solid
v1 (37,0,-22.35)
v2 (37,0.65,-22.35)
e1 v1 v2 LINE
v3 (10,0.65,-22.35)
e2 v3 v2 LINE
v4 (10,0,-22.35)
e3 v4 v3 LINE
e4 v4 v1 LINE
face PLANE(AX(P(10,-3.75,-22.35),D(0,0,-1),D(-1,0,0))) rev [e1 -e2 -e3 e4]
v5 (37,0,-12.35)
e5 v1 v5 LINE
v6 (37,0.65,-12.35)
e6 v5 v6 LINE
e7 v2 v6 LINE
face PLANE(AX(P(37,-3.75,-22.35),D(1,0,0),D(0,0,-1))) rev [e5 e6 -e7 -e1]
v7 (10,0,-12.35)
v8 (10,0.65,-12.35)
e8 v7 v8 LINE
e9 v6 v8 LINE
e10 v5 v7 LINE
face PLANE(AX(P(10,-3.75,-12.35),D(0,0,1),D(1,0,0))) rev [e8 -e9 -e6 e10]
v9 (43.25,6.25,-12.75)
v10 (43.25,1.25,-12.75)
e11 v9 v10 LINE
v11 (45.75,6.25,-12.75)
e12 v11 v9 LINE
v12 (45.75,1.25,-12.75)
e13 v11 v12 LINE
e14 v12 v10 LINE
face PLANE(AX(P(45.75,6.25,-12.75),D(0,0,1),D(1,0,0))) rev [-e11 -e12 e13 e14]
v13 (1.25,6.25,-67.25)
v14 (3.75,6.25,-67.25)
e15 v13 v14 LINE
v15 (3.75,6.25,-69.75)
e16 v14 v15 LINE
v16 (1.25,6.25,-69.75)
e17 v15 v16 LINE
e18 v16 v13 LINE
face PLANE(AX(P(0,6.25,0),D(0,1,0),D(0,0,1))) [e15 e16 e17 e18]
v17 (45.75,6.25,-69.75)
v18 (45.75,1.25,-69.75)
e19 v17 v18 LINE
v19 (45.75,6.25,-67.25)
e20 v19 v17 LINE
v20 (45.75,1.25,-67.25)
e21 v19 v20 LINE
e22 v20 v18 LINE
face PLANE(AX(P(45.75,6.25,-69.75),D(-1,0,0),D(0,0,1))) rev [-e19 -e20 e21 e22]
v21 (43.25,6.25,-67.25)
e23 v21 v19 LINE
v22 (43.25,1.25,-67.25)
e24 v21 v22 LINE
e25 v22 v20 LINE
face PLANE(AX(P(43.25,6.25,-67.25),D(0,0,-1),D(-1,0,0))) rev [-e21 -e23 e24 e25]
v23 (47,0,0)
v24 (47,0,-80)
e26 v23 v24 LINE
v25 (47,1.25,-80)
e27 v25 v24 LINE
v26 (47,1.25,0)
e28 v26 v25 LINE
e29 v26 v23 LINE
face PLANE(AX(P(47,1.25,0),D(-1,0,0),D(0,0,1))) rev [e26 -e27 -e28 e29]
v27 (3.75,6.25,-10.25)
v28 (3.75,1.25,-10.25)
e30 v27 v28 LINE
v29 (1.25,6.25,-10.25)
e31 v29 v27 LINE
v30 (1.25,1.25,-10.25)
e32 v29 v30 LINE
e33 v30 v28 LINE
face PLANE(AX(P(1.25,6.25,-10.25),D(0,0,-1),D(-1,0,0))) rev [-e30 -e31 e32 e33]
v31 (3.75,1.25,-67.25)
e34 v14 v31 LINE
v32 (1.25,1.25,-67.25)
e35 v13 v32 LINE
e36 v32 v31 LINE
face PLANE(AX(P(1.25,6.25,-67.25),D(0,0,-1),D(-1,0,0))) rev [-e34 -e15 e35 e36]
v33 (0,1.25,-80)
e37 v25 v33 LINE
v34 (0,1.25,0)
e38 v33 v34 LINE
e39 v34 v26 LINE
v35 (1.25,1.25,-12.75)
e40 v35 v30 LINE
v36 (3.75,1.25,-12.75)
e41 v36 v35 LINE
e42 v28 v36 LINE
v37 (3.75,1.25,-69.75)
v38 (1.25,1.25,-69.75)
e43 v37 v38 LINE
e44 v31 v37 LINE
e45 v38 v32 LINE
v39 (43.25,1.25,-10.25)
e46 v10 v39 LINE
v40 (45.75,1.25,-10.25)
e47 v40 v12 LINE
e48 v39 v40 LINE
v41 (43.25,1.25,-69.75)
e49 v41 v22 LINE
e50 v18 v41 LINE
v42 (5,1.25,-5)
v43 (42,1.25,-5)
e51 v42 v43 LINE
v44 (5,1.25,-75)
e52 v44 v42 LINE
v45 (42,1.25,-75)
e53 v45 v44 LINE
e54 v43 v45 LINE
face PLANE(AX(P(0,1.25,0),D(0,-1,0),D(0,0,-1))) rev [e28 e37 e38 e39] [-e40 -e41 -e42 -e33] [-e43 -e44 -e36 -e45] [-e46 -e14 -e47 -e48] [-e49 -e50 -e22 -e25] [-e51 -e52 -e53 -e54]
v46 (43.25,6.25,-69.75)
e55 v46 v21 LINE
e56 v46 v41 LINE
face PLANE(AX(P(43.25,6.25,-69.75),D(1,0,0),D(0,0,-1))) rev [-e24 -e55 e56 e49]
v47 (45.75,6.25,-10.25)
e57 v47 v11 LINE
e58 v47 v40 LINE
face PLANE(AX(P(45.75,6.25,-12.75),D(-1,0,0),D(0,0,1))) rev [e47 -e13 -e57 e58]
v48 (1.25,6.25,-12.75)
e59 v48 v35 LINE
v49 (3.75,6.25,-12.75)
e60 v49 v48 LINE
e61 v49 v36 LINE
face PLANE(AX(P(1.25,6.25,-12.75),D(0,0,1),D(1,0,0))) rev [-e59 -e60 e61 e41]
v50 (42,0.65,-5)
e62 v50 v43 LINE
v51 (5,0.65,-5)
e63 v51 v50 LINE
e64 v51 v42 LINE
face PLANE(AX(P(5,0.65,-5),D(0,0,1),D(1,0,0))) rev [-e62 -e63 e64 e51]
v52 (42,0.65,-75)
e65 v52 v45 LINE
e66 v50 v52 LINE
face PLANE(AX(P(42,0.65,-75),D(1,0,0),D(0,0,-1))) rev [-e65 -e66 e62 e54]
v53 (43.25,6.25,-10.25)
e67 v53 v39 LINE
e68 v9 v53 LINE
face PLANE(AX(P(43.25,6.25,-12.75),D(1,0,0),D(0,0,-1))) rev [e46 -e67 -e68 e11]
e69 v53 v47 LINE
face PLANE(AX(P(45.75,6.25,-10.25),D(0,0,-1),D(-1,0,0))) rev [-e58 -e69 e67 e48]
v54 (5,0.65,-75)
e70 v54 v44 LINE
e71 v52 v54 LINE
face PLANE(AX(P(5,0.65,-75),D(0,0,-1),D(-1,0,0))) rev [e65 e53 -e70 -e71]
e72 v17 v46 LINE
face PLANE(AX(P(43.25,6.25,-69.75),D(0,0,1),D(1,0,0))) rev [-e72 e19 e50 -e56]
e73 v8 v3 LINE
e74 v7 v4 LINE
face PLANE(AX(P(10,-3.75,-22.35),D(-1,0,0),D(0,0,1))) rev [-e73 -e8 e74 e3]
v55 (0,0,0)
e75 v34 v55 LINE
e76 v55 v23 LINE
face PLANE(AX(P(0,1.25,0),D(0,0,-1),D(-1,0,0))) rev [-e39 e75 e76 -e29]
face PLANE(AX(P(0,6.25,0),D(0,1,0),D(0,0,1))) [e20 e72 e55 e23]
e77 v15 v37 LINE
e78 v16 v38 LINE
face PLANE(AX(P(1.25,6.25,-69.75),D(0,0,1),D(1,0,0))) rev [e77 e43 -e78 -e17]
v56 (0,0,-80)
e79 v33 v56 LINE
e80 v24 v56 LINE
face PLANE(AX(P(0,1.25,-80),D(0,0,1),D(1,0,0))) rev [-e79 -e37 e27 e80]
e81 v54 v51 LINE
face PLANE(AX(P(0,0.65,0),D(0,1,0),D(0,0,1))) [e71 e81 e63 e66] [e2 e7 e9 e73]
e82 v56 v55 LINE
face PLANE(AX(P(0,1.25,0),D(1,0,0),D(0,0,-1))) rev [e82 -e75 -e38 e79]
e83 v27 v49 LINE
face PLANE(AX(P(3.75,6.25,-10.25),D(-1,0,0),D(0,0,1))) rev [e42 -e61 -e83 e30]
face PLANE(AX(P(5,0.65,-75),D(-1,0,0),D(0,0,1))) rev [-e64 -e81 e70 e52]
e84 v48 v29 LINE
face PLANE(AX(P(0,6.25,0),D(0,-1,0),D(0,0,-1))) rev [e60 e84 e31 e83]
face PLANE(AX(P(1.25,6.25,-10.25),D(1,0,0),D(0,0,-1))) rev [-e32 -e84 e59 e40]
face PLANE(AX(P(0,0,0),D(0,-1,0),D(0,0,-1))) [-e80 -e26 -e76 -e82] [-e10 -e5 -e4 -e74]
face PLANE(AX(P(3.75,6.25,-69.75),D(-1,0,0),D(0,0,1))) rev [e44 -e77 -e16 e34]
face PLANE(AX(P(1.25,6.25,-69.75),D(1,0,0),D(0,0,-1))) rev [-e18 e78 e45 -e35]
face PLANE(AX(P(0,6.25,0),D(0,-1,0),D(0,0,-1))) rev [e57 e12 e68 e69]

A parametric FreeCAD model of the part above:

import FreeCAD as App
import Part
import Sketcher

V = App.Vector
Q = App.Units.Quantity

doc = App.newDocument("Part")
body = doc.addObject("PartDesign::Body", "Body")

sketch1 = body.newObject("Sketcher::SketchObject", "Sketch")
sketch1.AttachmentSupport = (doc.getObject("XZ_Plane"), [""])
sketch1.MapMode = "FlatFace"
sketch1.addGeometry(Part.LineSegment(V(0, -80, 0), V(0, 0, 0)), False)
sketch1.addGeometry(Part.LineSegment(V(0, 0, 0), V(47, 0, 0)), False)
sketch1.addGeometry(Part.LineSegment(V(47, 0, 0), V(47, -80, 0)), False)
sketch1.addGeometry(Part.LineSegment(V(47, -80, 0), V(0, -80, 0)), False)
sketch1.addConstraint(Sketcher.Constraint("Coincident", 0, 2, 1, 1))
sketch1.addConstraint(Sketcher.Constraint("Coincident", 1, 2, 2, 1))
sketch1.addConstraint(Sketcher.Constraint("Coincident", 2, 2, 3, 1))
sketch1.addConstraint(Sketcher.Constraint("Coincident", 3, 2, 0, 1))
sketch1.addConstraint(Sketcher.Constraint("Vertical", 0))
sketch1.addConstraint(Sketcher.Constraint("Horizontal", 1))
sketch1.addConstraint(Sketcher.Constraint("Vertical", 2))
sketch1.addConstraint(Sketcher.Constraint("Horizontal", 3))
sketch1.addConstraint(Sketcher.Constraint("Coincident", 0, 2, -1, 1))
sketch1.addConstraint(Sketcher.Constraint("DistanceX", 1, 1, 1, 2, Q("47 mm")))
sketch1.addConstraint(Sketcher.Constraint("DistanceY", 0, 1, 0, 2, Q("80 mm")))
pad1 = body.newObject("PartDesign::Pad", "Pad")
pad1.Profile = sketch1
pad1.Length = 1.25
pad1.Reversed = True

sketch2 = body.newObject("Sketcher::SketchObject", "Sketch001")
sketch2.AttachmentSupport = (doc.getObject("XZ_Plane"), [""])
sketch2.MapMode = "FlatFace"
sketch2.AttachmentOffset = App.Placement(V(0, 0, -1.25), App.Rotation())
sketch2.addGeometry(Part.LineSegment(V(43.2, -69.8, 0), V(43.2, -67.2, 0)), False)
sketch2.addGeometry(Part.LineSegment(V(43.2, -67.2, 0), V(45.8, -67.2, 0)), False)
sketch2.addGeometry(Part.LineSegment(V(45.8, -67.2, 0), V(45.8, -69.8, 0)), False)
sketch2.addGeometry(Part.LineSegment(V(45.8, -69.8, 0), V(43.2, -69.8, 0)), False)
sketch2.addGeometry(Part.LineSegment(V(43.2, -12.8, 0), V(43.2, -10.2, 0)), False)
sketch2.addGeometry(Part.LineSegment(V(43.2, -10.2, 0), V(45.8, -10.2, 0)), False)
sketch2.addGeometry(Part.LineSegment(V(45.8, -10.2, 0), V(45.8, -12.8, 0)), False)
sketch2.addGeometry(Part.LineSegment(V(45.8, -12.8, 0), V(43.2, -12.8, 0)), False)
sketch2.addGeometry(Part.LineSegment(V(1.2, -12.8, 0), V(1.2, -10.2, 0)), False)
sketch2.addGeometry(Part.LineSegment(V(1.2, -10.2, 0), V(3.8, -10.2, 0)), False)
sketch2.addGeometry(Part.LineSegment(V(3.8, -10.2, 0), V(3.8, -12.8, 0)), False)
sketch2.addGeometry(Part.LineSegment(V(3.8, -12.8, 0), V(1.2, -12.8, 0)), False)
sketch2.addGeometry(Part.LineSegment(V(1.2, -69.8, 0), V(1.2, -67.2, 0)), False)
sketch2.addGeometry(Part.LineSegment(V(1.2, -67.2, 0), V(3.8, -67.2, 0)), False)
sketch2.addGeometry(Part.LineSegment(V(3.8, -67.2, 0), V(3.8, -69.8, 0)), False)
sketch2.addGeometry(Part.LineSegment(V(3.8, -69.8, 0), V(1.2, -69.8, 0)), False)
sketch2.addConstraint(Sketcher.Constraint("Coincident", 0, 2, 1, 1))
sketch2.addConstraint(Sketcher.Constraint("Coincident", 1, 2, 2, 1))
sketch2.addConstraint(Sketcher.Constraint("Coincident", 2, 2, 3, 1))
sketch2.addConstraint(Sketcher.Constraint("Coincident", 3, 2, 0, 1))
sketch2.addConstraint(Sketcher.Constraint("Coincident", 4, 2, 5, 1))
sketch2.addConstraint(Sketcher.Constraint("Coincident", 5, 2, 6, 1))
sketch2.addConstraint(Sketcher.Constraint("Coincident", 6, 2, 7, 1))
sketch2.addConstraint(Sketcher.Constraint("Coincident", 7, 2, 4, 1))
sketch2.addConstraint(Sketcher.Constraint("Coincident", 8, 2, 9, 1))
sketch2.addConstraint(Sketcher.Constraint("Coincident", 9, 2, 10, 1))
sketch2.addConstraint(Sketcher.Constraint("Coincident", 10, 2, 11, 1))
sketch2.addConstraint(Sketcher.Constraint("Coincident", 11, 2, 8, 1))
sketch2.addConstraint(Sketcher.Constraint("Coincident", 12, 2, 13, 1))
sketch2.addConstraint(Sketcher.Constraint("Coincident", 13, 2, 14, 1))
sketch2.addConstraint(Sketcher.Constraint("Coincident", 14, 2, 15, 1))
sketch2.addConstraint(Sketcher.Constraint("Coincident", 15, 2, 12, 1))
sketch2.addConstraint(Sketcher.Constraint("Vertical", 0))
sketch2.addConstraint(Sketcher.Constraint("Horizontal", 1))
sketch2.addConstraint(Sketcher.Constraint("Vertical", 2))
sketch2.addConstraint(Sketcher.Constraint("Horizontal", 3))
sketch2.addConstraint(Sketcher.Constraint("Vertical", 4))
sketch2.addConstraint(Sketcher.Constraint("Horizontal", 5))
sketch2.addConstraint(Sketcher.Constraint("Vertical", 6))
sketch2.addConstraint(Sketcher.Constraint("Horizontal", 7))
sketch2.addConstraint(Sketcher.Constraint("Vertical", 8))
sketch2.addConstraint(Sketcher.Constraint("Horizontal", 9))
sketch2.addConstraint(Sketcher.Constraint("Vertical", 10))
sketch2.addConstraint(Sketcher.Constraint("Horizontal", 11))
sketch2.addConstraint(Sketcher.Constraint("Vertical", 12))
sketch2.addConstraint(Sketcher.Constraint("Horizontal", 13))
sketch2.addConstraint(Sketcher.Constraint("Vertical", 14))
sketch2.addConstraint(Sketcher.Constraint("Horizontal", 15))
sketch2.addConstraint(Sketcher.Constraint("Horizontal", 5, 2, 8, 2))
sketch2.addConstraint(Sketcher.Constraint("Horizontal", 7, 2, 10, 2))
sketch2.addConstraint(Sketcher.Constraint("Horizontal", 1, 2, 12, 2))
sketch2.addConstraint(Sketcher.Constraint("Horizontal", 3, 2, 14, 2))
sketch2.addConstraint(Sketcher.Constraint("Vertical", 3, 2, 4, 2))
sketch2.addConstraint(Sketcher.Constraint("Vertical", 2, 2, 5, 2))
sketch2.addConstraint(Sketcher.Constraint("Vertical", 11, 2, 12, 2))
sketch2.addConstraint(Sketcher.Constraint("Vertical", 10, 2, 13, 2))
sketch2.addConstraint(Sketcher.Constraint("Equal", 7, 9))
sketch2.addConstraint(Sketcher.Constraint("Equal", 15, 0))
sketch2.addConstraint(Sketcher.Constraint("Equal", 2, 4))
sketch2.addConstraint(Sketcher.Constraint("DistanceX", 1, 1, 1, 2, Q("2.5 mm")))
sketch2.addConstraint(Sketcher.Constraint("DistanceY", 0, 2, 4, 2, Q("57 mm")))
sketch2.addConstraint(Sketcher.Constraint("DistanceX", 8, 2, 4, 2, Q("42 mm")))
sketch2.addConstraint(Sketcher.Constraint("DistanceX", -1, 1, 0, 2, Q("43.25 mm")))
sketch2.addConstraint(Sketcher.Constraint("DistanceY", 0, 2, -1, 1, Q("67.25 mm")))
pad2 = body.newObject("PartDesign::Pad", "Pad001")
pad2.Profile = sketch2
pad2.Length = 5
pad2.Reversed = True

sketch3 = body.newObject("Sketcher::SketchObject", "Sketch002")
sketch3.AttachmentSupport = (doc.getObject("XZ_Plane"), [""])
sketch3.MapMode = "FlatFace"
sketch3.AttachmentOffset = App.Placement(V(0, 0, -1.25), App.Rotation())
sketch3.addGeometry(Part.LineSegment(V(10, -22, 0), V(10, -12, 0)), False)
sketch3.addGeometry(Part.LineSegment(V(10, -12, 0), V(37, -12, 0)), False)
sketch3.addGeometry(Part.LineSegment(V(37, -12, 0), V(37, -22, 0)), False)
sketch3.addGeometry(Part.LineSegment(V(37, -22, 0), V(10, -22, 0)), False)
sketch3.addConstraint(Sketcher.Constraint("Coincident", 0, 2, 1, 1))
sketch3.addConstraint(Sketcher.Constraint("Coincident", 1, 2, 2, 1))
sketch3.addConstraint(Sketcher.Constraint("Coincident", 2, 2, 3, 1))
sketch3.addConstraint(Sketcher.Constraint("Coincident", 3, 2, 0, 1))
sketch3.addConstraint(Sketcher.Constraint("Vertical", 0))
sketch3.addConstraint(Sketcher.Constraint("Horizontal", 1))
sketch3.addConstraint(Sketcher.Constraint("Vertical", 2))
sketch3.addConstraint(Sketcher.Constraint("Horizontal", 3))
sketch3.addConstraint(Sketcher.Constraint("DistanceX", 1, 1, 1, 2, Q("27 mm")))
sketch3.addConstraint(Sketcher.Constraint("DistanceY", 0, 1, 0, 2, Q("10 mm")))
sketch3.addConstraint(Sketcher.Constraint("DistanceX", -1, 1, 0, 2, Q("10 mm")))
sketch3.addConstraint(Sketcher.Constraint("DistanceY", 0, 2, -1, 1, Q("12.35 mm")))
pocket1 = body.newObject("PartDesign::Pocket", "Pocket")
pocket1.Profile = sketch3
pocket1.Length = 5
pocket1.Reversed = True

sketch4 = body.newObject("Sketcher::SketchObject", "Sketch003")
sketch4.AttachmentSupport = (doc.getObject("XZ_Plane"), [""])
sketch4.MapMode = "FlatFace"
sketch4.AttachmentOffset = App.Placement(V(0, 0, -1.25), App.Rotation())
sketch4.addGeometry(Part.LineSegment(V(5, -75, 0), V(5, -5, 0)), False)
sketch4.addGeometry(Part.LineSegment(V(5, -5, 0), V(42, -5, 0)), False)
sketch4.addGeometry(Part.LineSegment(V(42, -5, 0), V(42, -75, 0)), False)
sketch4.addGeometry(Part.LineSegment(V(42, -75, 0), V(5, -75, 0)), False)
sketch4.addConstraint(Sketcher.Constraint("Coincident", 0, 2, 1, 1))
sketch4.addConstraint(Sketcher.Constraint("Coincident", 1, 2, 2, 1))
sketch4.addConstraint(Sketcher.Constraint("Coincident", 2, 2, 3, 1))
sketch4.addConstraint(Sketcher.Constraint("Coincident", 3, 2, 0, 1))
sketch4.addConstraint(Sketcher.Constraint("Vertical", 0))
sketch4.addConstraint(Sketcher.Constraint("Horizontal", 1))
sketch4.addConstraint(Sketcher.Constraint("Vertical", 2))
sketch4.addConstraint(Sketcher.Constraint("Horizontal", 3))
sketch4.addConstraint(Sketcher.Constraint("DistanceX", 1, 1, 1, 2, Q("37 mm")))
sketch4.addConstraint(Sketcher.Constraint("DistanceY", 0, 1, 0, 2, Q("70 mm")))
sketch4.addConstraint(Sketcher.Constraint("DistanceX", -1, 1, 0, 2, Q("5 mm")))
sketch4.addConstraint(Sketcher.Constraint("DistanceY", 0, 2, -1, 1, Q("5 mm")))
pocket2 = body.newObject("PartDesign::Pocket", "Pocket001")
pocket2.Profile = sketch4
pocket2.Length = 0.6
pocket2.Reversed = True

doc.recompute()
